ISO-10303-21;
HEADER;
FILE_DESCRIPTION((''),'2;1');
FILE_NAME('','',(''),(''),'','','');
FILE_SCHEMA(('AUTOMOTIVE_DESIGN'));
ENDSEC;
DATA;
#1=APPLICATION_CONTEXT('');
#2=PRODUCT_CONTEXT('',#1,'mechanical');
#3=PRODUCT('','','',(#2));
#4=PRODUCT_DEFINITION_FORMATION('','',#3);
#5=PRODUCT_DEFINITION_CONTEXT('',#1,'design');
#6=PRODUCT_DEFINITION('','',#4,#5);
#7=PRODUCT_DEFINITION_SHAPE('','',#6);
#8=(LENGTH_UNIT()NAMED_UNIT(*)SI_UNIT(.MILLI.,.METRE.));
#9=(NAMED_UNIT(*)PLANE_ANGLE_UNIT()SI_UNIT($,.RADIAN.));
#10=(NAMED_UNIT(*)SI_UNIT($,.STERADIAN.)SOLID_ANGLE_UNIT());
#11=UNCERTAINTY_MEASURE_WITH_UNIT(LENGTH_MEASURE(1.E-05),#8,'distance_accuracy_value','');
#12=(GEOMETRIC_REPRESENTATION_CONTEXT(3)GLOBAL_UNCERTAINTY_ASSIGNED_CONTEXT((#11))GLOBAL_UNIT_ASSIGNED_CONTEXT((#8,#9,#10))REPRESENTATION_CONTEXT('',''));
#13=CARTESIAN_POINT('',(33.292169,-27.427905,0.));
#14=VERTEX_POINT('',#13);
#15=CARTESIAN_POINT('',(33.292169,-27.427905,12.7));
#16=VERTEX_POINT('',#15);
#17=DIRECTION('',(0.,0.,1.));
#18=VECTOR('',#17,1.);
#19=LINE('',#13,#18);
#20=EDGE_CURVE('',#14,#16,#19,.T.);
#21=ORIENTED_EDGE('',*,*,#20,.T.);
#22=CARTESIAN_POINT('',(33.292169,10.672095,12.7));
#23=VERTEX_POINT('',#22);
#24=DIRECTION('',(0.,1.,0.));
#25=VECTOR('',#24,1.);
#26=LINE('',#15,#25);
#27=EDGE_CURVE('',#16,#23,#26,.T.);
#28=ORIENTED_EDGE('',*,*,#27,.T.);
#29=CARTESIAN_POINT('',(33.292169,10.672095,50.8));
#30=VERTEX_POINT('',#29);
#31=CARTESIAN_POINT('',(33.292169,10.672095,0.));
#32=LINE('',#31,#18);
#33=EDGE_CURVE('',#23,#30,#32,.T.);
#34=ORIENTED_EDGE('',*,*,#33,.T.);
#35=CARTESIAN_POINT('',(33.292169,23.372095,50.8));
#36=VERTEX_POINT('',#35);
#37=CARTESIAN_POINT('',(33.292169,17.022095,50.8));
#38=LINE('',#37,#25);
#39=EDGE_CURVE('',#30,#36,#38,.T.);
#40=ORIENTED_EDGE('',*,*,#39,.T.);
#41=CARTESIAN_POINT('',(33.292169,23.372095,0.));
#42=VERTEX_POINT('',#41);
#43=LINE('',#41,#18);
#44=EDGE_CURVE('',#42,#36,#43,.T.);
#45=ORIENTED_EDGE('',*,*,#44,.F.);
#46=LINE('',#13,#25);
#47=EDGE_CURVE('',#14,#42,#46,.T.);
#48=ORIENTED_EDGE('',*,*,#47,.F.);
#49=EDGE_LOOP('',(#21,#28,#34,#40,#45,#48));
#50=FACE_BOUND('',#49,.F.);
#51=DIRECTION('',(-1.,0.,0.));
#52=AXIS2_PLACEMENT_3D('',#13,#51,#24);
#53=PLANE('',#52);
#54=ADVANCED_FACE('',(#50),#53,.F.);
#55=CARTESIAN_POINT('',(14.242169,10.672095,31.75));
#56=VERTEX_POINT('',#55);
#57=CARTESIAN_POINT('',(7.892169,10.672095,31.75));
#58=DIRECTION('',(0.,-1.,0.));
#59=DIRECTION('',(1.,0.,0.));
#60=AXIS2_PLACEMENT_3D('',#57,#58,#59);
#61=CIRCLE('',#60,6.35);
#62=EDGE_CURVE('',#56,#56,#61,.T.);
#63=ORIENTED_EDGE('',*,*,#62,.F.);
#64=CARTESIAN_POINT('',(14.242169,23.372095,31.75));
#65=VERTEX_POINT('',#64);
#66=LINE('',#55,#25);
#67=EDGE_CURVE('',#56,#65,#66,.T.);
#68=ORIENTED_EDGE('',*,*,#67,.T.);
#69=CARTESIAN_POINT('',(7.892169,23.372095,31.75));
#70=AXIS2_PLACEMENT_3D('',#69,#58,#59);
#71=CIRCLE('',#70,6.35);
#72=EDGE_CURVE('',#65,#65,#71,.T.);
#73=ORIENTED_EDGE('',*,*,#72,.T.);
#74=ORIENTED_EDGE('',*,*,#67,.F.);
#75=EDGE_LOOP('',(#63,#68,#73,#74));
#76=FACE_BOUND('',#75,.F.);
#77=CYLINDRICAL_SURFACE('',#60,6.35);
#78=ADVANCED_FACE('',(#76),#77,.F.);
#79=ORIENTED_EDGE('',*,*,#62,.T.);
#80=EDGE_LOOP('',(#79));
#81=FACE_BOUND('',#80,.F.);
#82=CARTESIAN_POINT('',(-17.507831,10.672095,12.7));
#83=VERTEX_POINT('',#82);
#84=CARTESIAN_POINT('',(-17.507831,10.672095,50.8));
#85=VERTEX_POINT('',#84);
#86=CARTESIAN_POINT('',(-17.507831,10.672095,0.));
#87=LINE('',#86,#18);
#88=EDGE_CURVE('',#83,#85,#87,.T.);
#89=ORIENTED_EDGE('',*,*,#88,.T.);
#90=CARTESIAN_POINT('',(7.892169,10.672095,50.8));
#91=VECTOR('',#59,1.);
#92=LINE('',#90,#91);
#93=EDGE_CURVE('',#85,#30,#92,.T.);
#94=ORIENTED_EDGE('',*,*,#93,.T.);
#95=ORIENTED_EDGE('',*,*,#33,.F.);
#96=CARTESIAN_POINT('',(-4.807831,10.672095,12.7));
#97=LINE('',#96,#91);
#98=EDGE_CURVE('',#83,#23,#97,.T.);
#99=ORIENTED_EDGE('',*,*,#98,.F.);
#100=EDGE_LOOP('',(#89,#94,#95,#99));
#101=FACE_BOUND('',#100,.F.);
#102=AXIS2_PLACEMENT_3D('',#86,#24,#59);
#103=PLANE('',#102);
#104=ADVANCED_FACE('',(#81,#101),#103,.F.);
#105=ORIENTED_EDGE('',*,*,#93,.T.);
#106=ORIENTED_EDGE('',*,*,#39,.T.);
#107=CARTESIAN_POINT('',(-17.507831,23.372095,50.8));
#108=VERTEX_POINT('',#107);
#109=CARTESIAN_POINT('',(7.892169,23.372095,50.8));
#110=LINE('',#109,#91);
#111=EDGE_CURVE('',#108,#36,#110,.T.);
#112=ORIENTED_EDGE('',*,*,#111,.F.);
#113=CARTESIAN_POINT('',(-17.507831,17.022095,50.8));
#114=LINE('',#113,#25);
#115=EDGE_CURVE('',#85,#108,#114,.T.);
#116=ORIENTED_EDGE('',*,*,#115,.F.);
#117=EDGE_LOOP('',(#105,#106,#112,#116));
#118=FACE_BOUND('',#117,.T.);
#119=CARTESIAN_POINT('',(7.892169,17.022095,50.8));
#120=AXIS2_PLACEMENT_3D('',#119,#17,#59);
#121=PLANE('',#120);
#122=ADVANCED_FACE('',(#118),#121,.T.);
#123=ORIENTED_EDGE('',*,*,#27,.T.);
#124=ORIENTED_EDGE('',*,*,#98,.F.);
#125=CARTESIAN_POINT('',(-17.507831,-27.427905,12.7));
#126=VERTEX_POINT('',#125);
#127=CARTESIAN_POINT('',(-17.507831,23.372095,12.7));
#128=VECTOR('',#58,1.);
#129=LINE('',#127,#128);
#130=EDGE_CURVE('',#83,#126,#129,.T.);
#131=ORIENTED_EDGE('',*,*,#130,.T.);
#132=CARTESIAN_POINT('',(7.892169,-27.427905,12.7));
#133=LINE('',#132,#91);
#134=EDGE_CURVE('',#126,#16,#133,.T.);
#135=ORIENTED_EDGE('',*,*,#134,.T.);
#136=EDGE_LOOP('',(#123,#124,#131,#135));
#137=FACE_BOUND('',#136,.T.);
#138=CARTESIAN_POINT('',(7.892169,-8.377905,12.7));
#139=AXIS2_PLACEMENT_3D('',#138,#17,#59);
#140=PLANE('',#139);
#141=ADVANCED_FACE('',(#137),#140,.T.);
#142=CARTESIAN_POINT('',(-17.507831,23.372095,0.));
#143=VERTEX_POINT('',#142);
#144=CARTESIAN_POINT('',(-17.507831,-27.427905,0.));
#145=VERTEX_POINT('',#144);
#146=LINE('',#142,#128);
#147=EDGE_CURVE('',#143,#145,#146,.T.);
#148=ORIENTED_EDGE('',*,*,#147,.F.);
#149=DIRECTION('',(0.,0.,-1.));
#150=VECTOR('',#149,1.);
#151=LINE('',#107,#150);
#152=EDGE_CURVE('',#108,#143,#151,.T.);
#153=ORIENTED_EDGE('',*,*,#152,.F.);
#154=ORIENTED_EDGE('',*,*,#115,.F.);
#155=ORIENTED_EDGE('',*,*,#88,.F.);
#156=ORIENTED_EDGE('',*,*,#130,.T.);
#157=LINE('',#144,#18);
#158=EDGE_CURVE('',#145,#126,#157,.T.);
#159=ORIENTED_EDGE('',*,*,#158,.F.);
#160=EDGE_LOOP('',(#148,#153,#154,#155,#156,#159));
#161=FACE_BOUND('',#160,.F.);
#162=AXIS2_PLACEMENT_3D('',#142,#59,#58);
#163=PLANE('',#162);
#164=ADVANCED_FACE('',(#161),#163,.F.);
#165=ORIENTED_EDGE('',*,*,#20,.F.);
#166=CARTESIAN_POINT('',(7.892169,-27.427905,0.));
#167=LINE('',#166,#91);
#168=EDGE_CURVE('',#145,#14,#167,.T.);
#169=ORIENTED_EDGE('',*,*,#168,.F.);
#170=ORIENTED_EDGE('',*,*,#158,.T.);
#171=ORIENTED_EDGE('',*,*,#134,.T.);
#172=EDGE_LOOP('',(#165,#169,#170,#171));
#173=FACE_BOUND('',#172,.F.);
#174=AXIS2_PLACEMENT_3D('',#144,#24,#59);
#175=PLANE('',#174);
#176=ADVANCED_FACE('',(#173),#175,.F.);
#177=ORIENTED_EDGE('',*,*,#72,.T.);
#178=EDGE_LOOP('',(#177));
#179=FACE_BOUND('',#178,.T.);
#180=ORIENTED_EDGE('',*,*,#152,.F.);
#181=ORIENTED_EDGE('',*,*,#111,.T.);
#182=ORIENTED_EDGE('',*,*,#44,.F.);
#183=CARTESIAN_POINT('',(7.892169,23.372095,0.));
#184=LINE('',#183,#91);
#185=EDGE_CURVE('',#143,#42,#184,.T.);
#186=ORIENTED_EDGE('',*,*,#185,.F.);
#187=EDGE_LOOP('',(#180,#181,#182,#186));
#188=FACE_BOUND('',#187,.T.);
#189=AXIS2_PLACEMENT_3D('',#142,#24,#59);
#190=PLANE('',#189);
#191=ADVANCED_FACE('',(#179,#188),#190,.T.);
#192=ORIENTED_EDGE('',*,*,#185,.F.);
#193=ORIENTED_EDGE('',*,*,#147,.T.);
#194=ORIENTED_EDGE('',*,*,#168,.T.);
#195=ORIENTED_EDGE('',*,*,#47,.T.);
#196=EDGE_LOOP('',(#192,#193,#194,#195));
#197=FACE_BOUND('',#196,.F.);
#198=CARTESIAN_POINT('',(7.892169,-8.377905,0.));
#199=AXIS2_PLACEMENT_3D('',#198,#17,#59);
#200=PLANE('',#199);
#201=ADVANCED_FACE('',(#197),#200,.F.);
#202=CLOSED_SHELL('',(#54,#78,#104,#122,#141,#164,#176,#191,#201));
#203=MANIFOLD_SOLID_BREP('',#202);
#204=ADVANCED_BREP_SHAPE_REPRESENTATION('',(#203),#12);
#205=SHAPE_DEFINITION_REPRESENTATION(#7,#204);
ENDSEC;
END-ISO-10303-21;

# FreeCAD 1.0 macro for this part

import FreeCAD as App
import Part
import Sketcher
from FreeCAD import Vector
Q = App.Units.Quantity

doc = App.newDocument("Part")
body = doc.addObject("PartDesign::Body", "Body")

sketch1 = body.newObject("Sketcher::SketchObject", "Sketch")
sketch1.AttachmentSupport = (doc.getObject("XY_Plane"), [""])
sketch1.MapMode = "FlatFace"
sketch1.addGeometry(Part.LineSegment(Vector(-18, 23, 0), Vector(-18, 11, 0)), False)
sketch1.addGeometry(Part.LineSegment(Vector(-18, 11, 0), Vector(33, 11, 0)), False)
sketch1.addGeometry(Part.LineSegment(Vector(33, 11, 0), Vector(33, 23, 0)), False)
sketch1.addGeometry(Part.LineSegment(Vector(33, 23, 0), Vector(-18, 23, 0)), False)
sketch1.addConstraint(Sketcher.Constraint("Coincident", 0, 2, 1, 1))
sketch1.addConstraint(Sketcher.Constraint("Coincident", 1, 2, 2, 1))
sketch1.addConstraint(Sketcher.Constraint("Coincident", 2, 2, 3, 1))
sketch1.addConstraint(Sketcher.Constraint("Coincident", 3, 2, 0, 1))
sketch1.addConstraint(Sketcher.Constraint("Vertical", 0))
sketch1.addConstraint(Sketcher.Constraint("Horizontal", 1))
sketch1.addConstraint(Sketcher.Constraint("Vertical", 2))
sketch1.addConstraint(Sketcher.Constraint("Horizontal", 3))
sketch1.addConstraint(Sketcher.Constraint("DistanceX", 1, 1, 1, 2, Q("2 in")))
sketch1.addConstraint(Sketcher.Constraint("DistanceY", 0, 2, 0, 1, Q("0.5 in")))
sketch1.addConstraint(Sketcher.Constraint("DistanceX", 0, 2, -1, 1, 17.507831))
sketch1.addConstraint(Sketcher.Constraint("DistanceY", -1, 1, 0, 2, 10.672095))
pad1 = body.newObject("PartDesign::Pad", "Pad")
pad1.Profile = sketch1
pad1.Length = Q("2 in")

sketch2 = body.newObject("Sketcher::SketchObject", "Sketch001")
sketch2.AttachmentSupport = (doc.getObject("XY_Plane"), [""])
sketch2.MapMode = "FlatFace"
sketch2.addGeometry(Part.LineSegment(Vector(-18, -27, 0), Vector(33, -27, 0)), False)
sketch2.addGeometry(Part.LineSegment(Vector(33, -27, 0), Vector(33, 23, 0)), False)
sketch2.addGeometry(Part.LineSegment(Vector(33, 23, 0), Vector(-18, 23, 0)), False)
sketch2.addGeometry(Part.LineSegment(Vector(-18, 23, 0), Vector(-18, -27, 0)), False)
sketch2.addConstraint(Sketcher.Constraint("Coincident", 0, 2, 1, 1))
sketch2.addConstraint(Sketcher.Constraint("Coincident", 1, 2, 2, 1))
sketch2.addConstraint(Sketcher.Constraint("Coincident", 2, 2, 3, 1))
sketch2.addConstraint(Sketcher.Constraint("Coincident", 3, 2, 0, 1))
sketch2.addConstraint(Sketcher.Constraint("Horizontal", 0))
sketch2.addConstraint(Sketcher.Constraint("Vertical", 1))
sketch2.addConstraint(Sketcher.Constraint("Horizontal", 2))
sketch2.addConstraint(Sketcher.Constraint("Vertical", 3))
sketch2.addConstraint(Sketcher.Constraint("Equal", 2, 1))
sketch2.addConstraint(Sketcher.Constraint("DistanceX", 0, 1, 0, 2, Q("2 in")))
sketch2.addConstraint(Sketcher.Constraint("DistanceX", -1, 1, 0, 2, 33.292169))
sketch2.addConstraint(Sketcher.Constraint("DistanceY", 0, 2, -1, 1, 27.427905))
pad2 = body.newObject("PartDesign::Pad", "Pad001")
pad2.Profile = sketch2
pad2.Length = Q("0.5 in")

sketch3 = body.newObject("Sketcher::SketchObject", "Sketch002")
sketch3.AttachmentSupport = (doc.getObject("XZ_Plane"), [""])
sketch3.MapMode = "FlatFace"
sketch3.AttachmentOffset = App.Placement(Vector(0, 0, -10.672095), App.Rotation())
sketch3.addGeometry(Part.Circle(Vector(8, 32, 0), Vector(0, 0, 1), 6), False)
sketch3.addConstraint(Sketcher.Constraint("Diameter", 0, Q("0.5 in")))
sketch3.addConstraint(Sketcher.Constraint("DistanceY", -1, 1, 0, 3, Q("1.25 in")))
sketch3.addConstraint(Sketcher.Constraint("DistanceX", -1, 1, 0, 3, 7.892169))
pocket1 = body.newObject("PartDesign::Pocket", "Pocket")
pocket1.Profile = sketch3
pocket1.Length = Q("1 in")

doc.recompute()
